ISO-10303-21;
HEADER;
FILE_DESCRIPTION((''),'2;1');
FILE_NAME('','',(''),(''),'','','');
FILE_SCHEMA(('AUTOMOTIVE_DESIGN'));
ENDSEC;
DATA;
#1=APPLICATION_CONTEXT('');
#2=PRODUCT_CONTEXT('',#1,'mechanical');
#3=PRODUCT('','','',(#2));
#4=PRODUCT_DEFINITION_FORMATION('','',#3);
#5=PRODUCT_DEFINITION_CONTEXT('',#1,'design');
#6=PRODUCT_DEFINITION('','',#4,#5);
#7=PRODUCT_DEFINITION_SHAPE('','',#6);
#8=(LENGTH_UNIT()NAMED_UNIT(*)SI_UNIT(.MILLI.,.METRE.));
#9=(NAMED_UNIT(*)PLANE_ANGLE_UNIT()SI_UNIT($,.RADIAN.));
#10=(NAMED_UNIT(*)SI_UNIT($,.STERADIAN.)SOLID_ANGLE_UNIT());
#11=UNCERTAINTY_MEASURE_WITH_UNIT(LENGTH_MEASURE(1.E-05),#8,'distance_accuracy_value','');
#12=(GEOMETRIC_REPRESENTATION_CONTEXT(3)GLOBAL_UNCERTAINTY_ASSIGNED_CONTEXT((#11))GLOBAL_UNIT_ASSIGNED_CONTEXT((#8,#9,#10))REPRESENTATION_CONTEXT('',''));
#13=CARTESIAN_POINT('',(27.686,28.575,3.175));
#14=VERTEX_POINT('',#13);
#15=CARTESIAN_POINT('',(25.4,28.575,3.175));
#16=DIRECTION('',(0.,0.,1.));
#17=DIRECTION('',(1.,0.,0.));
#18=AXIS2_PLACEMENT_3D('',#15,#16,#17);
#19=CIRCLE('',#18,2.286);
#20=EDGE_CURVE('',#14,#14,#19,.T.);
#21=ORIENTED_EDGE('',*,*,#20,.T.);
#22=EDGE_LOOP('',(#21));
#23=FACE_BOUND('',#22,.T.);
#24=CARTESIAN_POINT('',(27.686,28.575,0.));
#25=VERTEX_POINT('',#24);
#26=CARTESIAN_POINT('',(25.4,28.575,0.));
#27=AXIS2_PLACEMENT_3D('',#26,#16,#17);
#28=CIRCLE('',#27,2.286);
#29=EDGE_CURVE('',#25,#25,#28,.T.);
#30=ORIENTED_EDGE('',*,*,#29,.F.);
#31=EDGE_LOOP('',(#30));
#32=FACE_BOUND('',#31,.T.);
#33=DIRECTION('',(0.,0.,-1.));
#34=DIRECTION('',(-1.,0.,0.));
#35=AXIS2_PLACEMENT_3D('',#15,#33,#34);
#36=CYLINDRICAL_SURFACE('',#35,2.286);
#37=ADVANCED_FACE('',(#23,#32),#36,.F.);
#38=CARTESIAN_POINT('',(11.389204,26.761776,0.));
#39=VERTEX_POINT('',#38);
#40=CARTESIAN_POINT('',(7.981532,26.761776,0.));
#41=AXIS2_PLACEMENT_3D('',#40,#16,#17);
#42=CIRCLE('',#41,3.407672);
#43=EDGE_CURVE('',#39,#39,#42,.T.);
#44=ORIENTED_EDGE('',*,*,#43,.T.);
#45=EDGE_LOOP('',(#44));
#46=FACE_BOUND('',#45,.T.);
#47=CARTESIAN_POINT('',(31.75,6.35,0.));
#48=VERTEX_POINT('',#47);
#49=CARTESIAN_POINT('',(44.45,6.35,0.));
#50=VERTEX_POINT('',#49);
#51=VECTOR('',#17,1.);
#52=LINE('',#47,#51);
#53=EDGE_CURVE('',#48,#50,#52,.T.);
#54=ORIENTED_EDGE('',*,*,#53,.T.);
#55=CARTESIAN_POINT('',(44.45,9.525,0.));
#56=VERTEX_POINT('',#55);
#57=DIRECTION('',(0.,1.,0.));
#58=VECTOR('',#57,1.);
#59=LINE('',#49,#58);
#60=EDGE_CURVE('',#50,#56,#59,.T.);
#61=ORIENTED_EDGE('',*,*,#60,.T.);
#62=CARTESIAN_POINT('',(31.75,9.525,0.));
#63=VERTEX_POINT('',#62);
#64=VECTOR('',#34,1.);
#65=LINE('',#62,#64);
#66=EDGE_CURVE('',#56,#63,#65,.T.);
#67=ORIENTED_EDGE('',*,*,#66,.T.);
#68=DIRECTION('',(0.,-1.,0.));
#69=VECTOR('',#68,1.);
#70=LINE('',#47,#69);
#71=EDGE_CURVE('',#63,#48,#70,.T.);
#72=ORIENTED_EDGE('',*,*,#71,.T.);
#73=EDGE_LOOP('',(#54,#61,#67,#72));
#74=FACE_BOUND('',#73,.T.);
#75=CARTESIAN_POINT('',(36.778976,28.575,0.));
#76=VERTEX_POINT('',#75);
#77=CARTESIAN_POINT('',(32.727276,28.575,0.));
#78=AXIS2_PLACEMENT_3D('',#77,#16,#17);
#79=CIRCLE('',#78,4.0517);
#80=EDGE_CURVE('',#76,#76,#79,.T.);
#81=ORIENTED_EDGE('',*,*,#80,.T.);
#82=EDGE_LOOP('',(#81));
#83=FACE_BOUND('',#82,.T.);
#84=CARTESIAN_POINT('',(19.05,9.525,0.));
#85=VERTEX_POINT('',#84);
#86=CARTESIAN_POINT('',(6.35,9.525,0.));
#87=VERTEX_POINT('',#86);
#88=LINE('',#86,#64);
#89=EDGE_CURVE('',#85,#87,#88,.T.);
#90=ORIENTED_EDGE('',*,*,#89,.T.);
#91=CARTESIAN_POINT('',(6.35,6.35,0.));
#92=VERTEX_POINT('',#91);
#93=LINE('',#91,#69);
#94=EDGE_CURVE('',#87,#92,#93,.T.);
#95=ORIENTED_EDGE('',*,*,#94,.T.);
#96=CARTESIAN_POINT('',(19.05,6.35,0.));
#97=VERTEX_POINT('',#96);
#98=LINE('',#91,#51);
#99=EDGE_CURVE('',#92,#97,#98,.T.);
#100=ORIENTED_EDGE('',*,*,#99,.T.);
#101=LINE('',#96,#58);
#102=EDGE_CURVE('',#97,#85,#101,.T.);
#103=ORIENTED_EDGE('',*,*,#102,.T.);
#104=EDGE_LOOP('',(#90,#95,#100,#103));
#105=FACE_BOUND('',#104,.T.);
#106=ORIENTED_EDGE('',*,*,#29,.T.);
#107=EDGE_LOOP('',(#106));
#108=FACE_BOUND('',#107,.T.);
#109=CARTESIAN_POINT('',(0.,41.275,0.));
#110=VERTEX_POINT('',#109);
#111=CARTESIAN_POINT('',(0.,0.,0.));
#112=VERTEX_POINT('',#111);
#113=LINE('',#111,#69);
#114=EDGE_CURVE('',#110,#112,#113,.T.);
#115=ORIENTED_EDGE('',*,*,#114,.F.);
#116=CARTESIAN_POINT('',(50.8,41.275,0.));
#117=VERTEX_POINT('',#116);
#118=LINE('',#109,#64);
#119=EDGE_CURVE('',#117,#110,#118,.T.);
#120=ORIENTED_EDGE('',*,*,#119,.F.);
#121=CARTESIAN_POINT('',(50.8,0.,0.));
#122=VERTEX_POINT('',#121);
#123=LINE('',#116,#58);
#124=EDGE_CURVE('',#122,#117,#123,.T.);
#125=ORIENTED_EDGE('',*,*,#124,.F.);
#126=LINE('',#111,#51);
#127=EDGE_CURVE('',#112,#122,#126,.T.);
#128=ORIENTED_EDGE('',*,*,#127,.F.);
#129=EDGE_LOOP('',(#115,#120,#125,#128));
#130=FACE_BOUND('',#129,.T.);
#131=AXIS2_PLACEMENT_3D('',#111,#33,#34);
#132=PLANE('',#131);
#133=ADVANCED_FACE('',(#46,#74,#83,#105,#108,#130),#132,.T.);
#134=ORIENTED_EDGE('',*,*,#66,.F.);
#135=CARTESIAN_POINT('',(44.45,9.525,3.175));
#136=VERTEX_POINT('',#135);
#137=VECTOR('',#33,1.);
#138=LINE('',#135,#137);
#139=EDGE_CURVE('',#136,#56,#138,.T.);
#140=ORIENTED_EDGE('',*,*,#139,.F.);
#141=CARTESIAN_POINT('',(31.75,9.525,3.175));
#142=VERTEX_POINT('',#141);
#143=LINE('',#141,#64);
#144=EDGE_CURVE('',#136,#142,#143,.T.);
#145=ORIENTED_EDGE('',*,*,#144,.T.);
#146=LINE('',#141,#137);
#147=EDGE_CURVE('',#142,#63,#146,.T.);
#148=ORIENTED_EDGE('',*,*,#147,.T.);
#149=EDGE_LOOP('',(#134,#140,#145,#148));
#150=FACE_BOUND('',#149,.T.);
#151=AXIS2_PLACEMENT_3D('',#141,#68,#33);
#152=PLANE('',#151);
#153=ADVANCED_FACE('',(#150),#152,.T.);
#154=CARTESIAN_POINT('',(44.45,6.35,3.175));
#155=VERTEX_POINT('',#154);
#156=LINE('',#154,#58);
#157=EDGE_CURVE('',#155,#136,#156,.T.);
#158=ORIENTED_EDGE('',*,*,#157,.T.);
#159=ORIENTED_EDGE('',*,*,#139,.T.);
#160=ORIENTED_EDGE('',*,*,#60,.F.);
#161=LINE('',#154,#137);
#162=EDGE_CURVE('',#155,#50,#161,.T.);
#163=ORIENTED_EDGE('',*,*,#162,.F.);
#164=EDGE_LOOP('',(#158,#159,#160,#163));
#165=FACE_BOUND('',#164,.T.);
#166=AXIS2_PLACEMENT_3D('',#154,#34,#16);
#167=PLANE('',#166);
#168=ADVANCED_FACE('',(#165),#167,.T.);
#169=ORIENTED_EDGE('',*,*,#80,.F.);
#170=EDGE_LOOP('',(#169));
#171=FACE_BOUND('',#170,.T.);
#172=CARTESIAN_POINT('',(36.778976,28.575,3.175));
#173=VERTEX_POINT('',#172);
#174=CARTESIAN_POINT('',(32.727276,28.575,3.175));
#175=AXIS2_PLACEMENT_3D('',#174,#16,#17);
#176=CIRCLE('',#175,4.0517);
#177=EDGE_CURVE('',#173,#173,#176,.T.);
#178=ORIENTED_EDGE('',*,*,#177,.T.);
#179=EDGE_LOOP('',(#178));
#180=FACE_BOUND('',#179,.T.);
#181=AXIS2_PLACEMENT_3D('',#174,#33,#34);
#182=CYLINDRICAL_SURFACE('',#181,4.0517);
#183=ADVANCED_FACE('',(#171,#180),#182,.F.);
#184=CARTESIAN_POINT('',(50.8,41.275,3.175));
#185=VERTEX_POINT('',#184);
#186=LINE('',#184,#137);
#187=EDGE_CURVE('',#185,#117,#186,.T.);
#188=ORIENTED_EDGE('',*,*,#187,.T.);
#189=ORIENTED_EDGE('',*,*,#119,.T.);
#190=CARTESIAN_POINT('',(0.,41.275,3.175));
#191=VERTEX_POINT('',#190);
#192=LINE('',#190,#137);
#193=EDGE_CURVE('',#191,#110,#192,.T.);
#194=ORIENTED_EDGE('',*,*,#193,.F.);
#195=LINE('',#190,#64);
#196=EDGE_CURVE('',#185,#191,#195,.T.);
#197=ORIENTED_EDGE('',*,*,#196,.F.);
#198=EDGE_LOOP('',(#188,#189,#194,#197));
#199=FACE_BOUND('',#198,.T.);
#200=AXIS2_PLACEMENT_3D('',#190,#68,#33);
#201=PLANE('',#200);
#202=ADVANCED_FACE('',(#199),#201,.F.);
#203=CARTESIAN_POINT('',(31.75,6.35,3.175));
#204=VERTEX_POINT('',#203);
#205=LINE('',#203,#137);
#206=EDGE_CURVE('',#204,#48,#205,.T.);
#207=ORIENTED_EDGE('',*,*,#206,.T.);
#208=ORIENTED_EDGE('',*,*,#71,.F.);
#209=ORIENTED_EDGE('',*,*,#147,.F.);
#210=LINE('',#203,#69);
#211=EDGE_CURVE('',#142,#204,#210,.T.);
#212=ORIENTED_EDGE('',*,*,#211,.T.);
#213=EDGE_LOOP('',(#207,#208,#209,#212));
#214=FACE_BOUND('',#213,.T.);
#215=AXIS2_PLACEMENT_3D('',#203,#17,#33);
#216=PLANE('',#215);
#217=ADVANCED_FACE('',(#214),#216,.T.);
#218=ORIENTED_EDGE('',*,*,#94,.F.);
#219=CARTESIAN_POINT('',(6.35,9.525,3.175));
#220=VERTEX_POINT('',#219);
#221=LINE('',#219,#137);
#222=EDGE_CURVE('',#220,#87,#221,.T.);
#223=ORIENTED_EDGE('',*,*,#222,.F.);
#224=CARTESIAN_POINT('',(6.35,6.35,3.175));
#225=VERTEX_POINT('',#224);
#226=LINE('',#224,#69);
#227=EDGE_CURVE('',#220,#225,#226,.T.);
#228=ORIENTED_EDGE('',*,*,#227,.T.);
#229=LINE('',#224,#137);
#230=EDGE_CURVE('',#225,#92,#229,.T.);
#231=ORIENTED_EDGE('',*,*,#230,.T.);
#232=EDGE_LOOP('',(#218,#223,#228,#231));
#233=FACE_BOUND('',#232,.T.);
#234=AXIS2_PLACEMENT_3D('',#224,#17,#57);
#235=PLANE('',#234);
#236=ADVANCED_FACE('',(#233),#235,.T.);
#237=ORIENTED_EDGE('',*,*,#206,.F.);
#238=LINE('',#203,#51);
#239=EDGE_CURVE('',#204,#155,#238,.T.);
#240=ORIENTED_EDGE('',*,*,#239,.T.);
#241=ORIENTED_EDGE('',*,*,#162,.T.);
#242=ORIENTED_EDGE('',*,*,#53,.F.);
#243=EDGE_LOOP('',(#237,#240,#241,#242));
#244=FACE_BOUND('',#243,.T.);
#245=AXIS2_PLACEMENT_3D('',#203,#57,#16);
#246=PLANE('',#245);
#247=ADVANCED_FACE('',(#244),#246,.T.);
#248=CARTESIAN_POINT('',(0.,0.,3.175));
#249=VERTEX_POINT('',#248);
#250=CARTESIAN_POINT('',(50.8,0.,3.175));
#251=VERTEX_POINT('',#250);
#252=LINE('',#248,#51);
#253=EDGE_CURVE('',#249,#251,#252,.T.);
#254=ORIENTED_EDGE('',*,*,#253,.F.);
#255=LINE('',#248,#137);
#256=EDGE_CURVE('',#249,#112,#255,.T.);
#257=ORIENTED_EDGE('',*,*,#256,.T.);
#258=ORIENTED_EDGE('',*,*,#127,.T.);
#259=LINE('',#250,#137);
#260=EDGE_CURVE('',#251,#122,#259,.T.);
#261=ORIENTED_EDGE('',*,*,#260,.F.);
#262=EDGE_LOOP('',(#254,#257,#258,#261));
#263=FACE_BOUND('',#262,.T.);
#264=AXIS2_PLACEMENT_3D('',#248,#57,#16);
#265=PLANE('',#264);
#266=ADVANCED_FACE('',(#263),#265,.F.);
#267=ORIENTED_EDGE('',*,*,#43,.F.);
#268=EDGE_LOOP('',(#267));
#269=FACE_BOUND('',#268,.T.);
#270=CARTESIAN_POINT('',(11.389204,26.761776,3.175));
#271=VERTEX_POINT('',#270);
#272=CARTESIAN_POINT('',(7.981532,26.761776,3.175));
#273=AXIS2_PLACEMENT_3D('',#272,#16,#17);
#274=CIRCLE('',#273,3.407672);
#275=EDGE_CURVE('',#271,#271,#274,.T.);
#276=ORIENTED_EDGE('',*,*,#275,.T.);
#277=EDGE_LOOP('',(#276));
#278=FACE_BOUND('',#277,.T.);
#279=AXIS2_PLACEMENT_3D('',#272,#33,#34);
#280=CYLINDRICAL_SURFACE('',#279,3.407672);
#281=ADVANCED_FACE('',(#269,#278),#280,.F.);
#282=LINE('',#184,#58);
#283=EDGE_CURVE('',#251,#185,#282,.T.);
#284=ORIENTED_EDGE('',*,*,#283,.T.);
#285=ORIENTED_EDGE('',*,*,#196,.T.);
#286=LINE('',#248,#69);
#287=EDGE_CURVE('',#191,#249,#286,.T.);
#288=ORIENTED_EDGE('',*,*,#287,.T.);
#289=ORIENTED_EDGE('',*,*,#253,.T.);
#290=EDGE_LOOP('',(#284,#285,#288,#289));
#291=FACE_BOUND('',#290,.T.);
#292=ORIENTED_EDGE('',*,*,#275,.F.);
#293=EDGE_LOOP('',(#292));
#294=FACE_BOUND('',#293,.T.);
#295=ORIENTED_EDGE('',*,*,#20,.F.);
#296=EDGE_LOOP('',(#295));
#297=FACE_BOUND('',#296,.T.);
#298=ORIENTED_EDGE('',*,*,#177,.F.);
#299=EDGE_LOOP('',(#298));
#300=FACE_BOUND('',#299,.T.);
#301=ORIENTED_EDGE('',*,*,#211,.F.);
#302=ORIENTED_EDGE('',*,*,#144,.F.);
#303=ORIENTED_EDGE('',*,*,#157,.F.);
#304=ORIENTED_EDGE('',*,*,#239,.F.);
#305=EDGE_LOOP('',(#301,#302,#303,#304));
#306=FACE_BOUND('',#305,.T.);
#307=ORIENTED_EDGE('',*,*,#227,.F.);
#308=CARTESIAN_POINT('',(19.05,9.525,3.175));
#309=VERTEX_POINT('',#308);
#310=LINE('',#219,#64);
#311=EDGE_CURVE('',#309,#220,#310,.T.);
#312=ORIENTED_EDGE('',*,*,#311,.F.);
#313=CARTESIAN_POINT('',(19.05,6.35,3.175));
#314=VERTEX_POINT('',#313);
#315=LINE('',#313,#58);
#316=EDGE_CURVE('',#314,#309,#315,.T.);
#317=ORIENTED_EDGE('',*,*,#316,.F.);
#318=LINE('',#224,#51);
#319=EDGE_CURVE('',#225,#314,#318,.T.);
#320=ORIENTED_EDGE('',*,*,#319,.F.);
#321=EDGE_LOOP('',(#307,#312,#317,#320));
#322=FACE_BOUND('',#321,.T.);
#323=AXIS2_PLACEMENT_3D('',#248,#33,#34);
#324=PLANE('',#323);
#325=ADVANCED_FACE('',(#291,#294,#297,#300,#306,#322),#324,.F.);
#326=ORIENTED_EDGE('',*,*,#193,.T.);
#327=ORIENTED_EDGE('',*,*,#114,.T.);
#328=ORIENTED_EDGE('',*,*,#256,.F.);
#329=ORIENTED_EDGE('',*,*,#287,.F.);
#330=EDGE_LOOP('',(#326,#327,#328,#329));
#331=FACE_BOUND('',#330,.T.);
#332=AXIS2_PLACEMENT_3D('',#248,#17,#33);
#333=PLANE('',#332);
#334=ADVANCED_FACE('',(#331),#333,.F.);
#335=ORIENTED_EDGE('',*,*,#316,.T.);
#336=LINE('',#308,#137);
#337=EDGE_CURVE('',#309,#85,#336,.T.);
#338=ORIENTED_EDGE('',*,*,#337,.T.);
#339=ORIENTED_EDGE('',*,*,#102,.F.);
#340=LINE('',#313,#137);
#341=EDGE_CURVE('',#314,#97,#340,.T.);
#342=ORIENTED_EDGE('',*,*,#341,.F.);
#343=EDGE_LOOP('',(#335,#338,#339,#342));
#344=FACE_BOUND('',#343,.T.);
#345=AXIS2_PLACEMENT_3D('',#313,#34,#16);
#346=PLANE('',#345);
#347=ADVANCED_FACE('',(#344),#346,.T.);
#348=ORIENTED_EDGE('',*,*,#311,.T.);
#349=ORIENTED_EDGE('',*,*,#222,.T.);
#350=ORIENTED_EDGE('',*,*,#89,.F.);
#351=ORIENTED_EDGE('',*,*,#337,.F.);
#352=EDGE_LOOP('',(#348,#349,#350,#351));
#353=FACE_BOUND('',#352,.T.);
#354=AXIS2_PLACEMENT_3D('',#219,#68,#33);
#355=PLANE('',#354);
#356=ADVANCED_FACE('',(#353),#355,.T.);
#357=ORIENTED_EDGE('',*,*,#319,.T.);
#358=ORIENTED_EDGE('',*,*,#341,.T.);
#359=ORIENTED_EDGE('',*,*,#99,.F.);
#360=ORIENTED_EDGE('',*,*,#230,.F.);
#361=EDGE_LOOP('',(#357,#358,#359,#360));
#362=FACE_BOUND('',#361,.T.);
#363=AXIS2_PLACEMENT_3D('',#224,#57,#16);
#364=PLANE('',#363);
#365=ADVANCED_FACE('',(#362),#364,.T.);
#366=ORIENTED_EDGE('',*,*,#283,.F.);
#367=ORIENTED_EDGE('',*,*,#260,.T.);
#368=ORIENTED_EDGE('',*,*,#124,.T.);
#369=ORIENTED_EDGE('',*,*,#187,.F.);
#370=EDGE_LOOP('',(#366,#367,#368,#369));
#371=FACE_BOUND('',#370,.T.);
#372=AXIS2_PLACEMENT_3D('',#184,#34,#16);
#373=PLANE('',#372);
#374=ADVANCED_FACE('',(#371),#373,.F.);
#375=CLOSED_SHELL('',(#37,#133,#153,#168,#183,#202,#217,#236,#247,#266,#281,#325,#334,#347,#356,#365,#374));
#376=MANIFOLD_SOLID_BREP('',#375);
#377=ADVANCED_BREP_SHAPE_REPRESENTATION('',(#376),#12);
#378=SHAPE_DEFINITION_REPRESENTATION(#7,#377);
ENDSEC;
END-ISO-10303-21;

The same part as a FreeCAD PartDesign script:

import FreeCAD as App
import Part
import Sketcher

V = App.Vector
Q = App.Units.Quantity

doc = App.newDocument("Part")
body = doc.addObject("PartDesign::Body", "Body")

# Sketch on XY plane
sketch1 = body.newObject("Sketcher::SketchObject", "Sketch")
sketch1.AttachmentSupport = (doc.getObject("XY_Plane"), [""])
sketch1.MapMode = "FlatFace"
sketch1.addGeometry(Part.LineSegment(V(0, 41.3, 0), V(0, 0, 0)), False)
sketch1.addGeometry(Part.LineSegment(V(0, 0, 0), V(50.8, 0, 0)), False)
sketch1.addGeometry(Part.LineSegment(V(50.8, 0, 0), V(50.8, 41.3, 0)), False)
sketch1.addGeometry(Part.LineSegment(V(50.8, 41.3, 0), V(0, 41.3, 0)), False)
sketch1.addGeometry(Part.LineSegment(V(19.1, 6.3, 0), V(6.3, 6.3, 0)), False)
sketch1.addGeometry(Part.LineSegment(V(6.3, 6.3, 0), V(6.3, 9.5, 0)), False)
sketch1.addGeometry(Part.LineSegment(V(6.3, 9.5, 0), V(19.1, 9.5, 0)), False)
sketch1.addGeometry(Part.LineSegment(V(19.1, 9.5, 0), V(19.1, 6.3, 0)), False)
sketch1.addGeometry(Part.LineSegment(V(44.5, 6.3, 0), V(31.8, 6.3, 0)), False)
sketch1.addGeometry(Part.LineSegment(V(31.8, 6.3, 0), V(31.8, 9.5, 0)), False)
sketch1.addGeometry(Part.LineSegment(V(31.8, 9.5, 0), V(44.5, 9.5, 0)), False)
sketch1.addGeometry(Part.LineSegment(V(44.5, 9.5, 0), V(44.5, 6.3, 0)), False)
sketch1.addGeometry(Part.Circle(V(8, 26.8, 0), V(0, 0, 1), 3.4), False)
sketch1.addGeometry(Part.Circle(V(25.4, 28.6, 0), V(0, 0, 1), 2.3), False)
sketch1.addGeometry(Part.Circle(V(32.7, 28.6, 0), V(0, 0, 1), 4.1), False)
sketch1.addConstraint(Sketcher.Constraint("Coincident", 0, 2, 1, 1))
sketch1.addConstraint(Sketcher.Constraint("Coincident", 1, 2, 2, 1))
sketch1.addConstraint(Sketcher.Constraint("Coincident", 2, 2, 3, 1))
sketch1.addConstraint(Sketcher.Constraint("Coincident", 3, 2, 0, 1))
sketch1.addConstraint(Sketcher.Constraint("Coincident", 4, 2, 5, 1))
sketch1.addConstraint(Sketcher.Constraint("Coincident", 5, 2, 6, 1))
sketch1.addConstraint(Sketcher.Constraint("Coincident", 6, 2, 7, 1))
sketch1.addConstraint(Sketcher.Constraint("Coincident", 7, 2, 4, 1))
sketch1.addConstraint(Sketcher.Constraint("Coincident", 8, 2, 9, 1))
sketch1.addConstraint(Sketcher.Constraint("Coincident", 9, 2, 10, 1))
sketch1.addConstraint(Sketcher.Constraint("Coincident", 10, 2, 11, 1))
sketch1.addConstraint(Sketcher.Constraint("Coincident", 11, 2, 8, 1))
sketch1.addConstraint(Sketcher.Constraint("Vertical", 0))
sketch1.addConstraint(Sketcher.Constraint("Horizontal", 1))
sketch1.addConstraint(Sketcher.Constraint("Vertical", 2))
sketch1.addConstraint(Sketcher.Constraint("Horizontal", 3))
sketch1.addConstraint(Sketcher.Constraint("Horizontal", 4))
sketch1.addConstraint(Sketcher.Constraint("Vertical", 5))
sketch1.addConstraint(Sketcher.Constraint("Horizontal", 6))
sketch1.addConstraint(Sketcher.Constraint("Vertical", 7))
sketch1.addConstraint(Sketcher.Constraint("Horizontal", 8))
sketch1.addConstraint(Sketcher.Constraint("Vertical", 9))
sketch1.addConstraint(Sketcher.Constraint("Horizontal", 10))
sketch1.addConstraint(Sketcher.Constraint("Vertical", 11))
sketch1.addConstraint(Sketcher.Constraint("Coincident", 0, 2, -1, 1))
sketch1.addConstraint(Sketcher.Constraint("Horizontal", 13, 3, 14, 3))
sketch1.addConstraint(Sketcher.Constraint("Horizontal", 7, 2, 8, 2))
sketch1.addConstraint(Sketcher.Constraint("Horizontal", 6, 2, 9, 2))
sketch1.addConstraint(Sketcher.Constraint("Equal", 6, 8))
sketch1.addConstraint(Sketcher.Constraint("Diameter", 13, Q("0.18 in")))
sketch1.addConstraint(Sketcher.Constraint("DistanceX", 1, 1, 1, 2, Q("2 in")))
sketch1.addConstraint(Sketcher.Constraint("DistanceX", 4, 2, 4, 1, Q("0.5 in")))
sketch1.addConstraint(Sketcher.Constraint("DistanceX", -1, 1, 13, 3, Q("1 in")))
sketch1.addConstraint(Sketcher.Constraint("DistanceX", 6, 2, 10, 2, Q("1 in")))
sketch1.addConstraint(Sketcher.Constraint("DistanceY", 14, 3, 2, 2, Q("0.5 in")))
sketch1.addConstraint(Sketcher.Constraint("Diameter", 14, Q("8.1034 mm")))
sketch1.addConstraint(Sketcher.Constraint("DistanceY", 0, 2, 0, 1, Q("1.625 in")))
sketch1.addConstraint(Sketcher.Constraint("DistanceY", 5, 1, 5, 2, Q("0.125 in")))
sketch1.addConstraint(Sketcher.Constraint("DistanceX", -1, 1, 4, 2, Q("0.25 in")))
sketch1.addConstraint(Sketcher.Constraint("DistanceY", -1, 1, 4, 2, Q("0.25 in")))
sketch1.addConstraint(Sketcher.Constraint("Diameter", 12, Q("6.815344 mm")))
sketch1.addConstraint(Sketcher.Constraint("DistanceX", -1, 1, 12, 3, Q("7.981532 mm")))
sketch1.addConstraint(Sketcher.Constraint("DistanceY", -1, 1, 12, 3, Q("26.761776 mm")))
sketch1.addConstraint(Sketcher.Constraint("DistanceX", -1, 1, 14, 3, Q("32.727276 mm")))
pad1 = body.newObject("PartDesign::Pad", "Pad")
pad1.Profile = sketch1
pad1.Length = Q("0.125 in")

doc.recompute()
